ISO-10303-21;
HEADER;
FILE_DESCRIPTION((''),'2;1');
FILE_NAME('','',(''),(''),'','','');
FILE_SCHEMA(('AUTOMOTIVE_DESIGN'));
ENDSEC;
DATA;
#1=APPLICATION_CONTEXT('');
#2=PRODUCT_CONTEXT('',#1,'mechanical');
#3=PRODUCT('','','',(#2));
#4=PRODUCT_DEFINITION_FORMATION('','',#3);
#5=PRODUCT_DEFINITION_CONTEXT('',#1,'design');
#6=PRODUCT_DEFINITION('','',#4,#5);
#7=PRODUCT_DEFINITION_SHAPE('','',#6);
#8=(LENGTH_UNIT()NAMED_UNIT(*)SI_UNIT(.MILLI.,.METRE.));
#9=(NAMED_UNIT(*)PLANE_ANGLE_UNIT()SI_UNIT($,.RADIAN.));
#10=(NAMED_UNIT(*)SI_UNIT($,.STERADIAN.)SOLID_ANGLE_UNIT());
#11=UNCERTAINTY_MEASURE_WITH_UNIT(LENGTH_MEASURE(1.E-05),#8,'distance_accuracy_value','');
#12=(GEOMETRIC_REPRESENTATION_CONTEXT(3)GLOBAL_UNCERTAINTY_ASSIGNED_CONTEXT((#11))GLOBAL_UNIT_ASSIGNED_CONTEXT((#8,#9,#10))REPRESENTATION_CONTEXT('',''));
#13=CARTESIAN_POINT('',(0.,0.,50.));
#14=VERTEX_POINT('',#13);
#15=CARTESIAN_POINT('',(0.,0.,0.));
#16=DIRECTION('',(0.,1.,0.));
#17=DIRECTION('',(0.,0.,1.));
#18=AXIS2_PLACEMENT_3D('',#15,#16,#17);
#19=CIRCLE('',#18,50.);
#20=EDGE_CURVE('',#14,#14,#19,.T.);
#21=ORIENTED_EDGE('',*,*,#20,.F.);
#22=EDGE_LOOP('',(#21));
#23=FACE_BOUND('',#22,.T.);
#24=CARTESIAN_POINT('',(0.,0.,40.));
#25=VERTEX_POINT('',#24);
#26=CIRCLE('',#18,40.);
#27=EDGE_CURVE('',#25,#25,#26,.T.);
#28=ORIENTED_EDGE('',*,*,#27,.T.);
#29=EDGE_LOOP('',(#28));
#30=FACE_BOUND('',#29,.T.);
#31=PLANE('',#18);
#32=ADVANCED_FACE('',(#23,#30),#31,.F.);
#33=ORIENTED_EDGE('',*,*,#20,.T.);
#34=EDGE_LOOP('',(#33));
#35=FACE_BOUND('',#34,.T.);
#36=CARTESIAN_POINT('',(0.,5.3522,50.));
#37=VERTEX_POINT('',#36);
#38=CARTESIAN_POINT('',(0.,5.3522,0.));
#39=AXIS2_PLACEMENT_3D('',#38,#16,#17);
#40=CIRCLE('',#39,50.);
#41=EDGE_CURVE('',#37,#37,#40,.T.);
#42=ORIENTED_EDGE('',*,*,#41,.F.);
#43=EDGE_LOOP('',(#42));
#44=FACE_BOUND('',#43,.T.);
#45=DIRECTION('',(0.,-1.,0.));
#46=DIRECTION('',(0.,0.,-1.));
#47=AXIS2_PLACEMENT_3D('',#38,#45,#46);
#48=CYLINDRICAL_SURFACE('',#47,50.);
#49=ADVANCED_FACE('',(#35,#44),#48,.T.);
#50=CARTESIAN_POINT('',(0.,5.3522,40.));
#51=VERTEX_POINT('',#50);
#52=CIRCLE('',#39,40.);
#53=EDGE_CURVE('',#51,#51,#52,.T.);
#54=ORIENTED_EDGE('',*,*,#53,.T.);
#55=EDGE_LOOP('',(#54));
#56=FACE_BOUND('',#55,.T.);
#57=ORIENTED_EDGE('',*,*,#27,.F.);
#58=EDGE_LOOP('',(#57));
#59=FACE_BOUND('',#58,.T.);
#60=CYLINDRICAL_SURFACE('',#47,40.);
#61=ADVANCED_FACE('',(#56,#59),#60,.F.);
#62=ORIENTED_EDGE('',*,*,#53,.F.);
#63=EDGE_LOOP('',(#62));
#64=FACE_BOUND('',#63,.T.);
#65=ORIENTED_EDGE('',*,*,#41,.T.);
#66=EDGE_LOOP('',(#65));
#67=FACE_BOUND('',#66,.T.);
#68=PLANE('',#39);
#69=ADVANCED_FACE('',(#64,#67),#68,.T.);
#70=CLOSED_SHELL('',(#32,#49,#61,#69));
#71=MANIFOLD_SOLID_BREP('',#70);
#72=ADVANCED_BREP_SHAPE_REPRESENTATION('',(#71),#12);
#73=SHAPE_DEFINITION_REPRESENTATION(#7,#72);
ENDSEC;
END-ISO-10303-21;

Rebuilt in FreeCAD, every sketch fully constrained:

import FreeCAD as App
import Part
import Sketcher

V = App.Vector
Q = App.Units.Quantity

doc = App.newDocument("Part")
body = doc.addObject("PartDesign::Body", "Body")

sketch1 = body.newObject("Sketcher::SketchObject", "Sketch")
sketch1.AttachmentSupport = (doc.getObject("XZ_Plane"), [""])
sketch1.MapMode = "FlatFace"
sketch1.addGeometry([
    Part.Circle(V(0, 0, 0), V(0, 0, 1), 50),
    Part.Circle(V(0, 0, 0), V(0, 0, 1), 40),
], False)
sketch1.addConstraint([
    Sketcher.Constraint("Coincident", 0, 3, -1, 1),
    Sketcher.Constraint("Coincident", 1, 3, -1, 1),
    Sketcher.Constraint("Diameter", 0, Q("100 mm")),
    Sketcher.Constraint("Diameter", 1, Q("80 mm")),
])
pad1 = body.newObject("PartDesign::Pad", "Pad")
pad1.Profile = sketch1
pad1.Length = 5.3522
pad1.Reversed = True

doc.recompute()
